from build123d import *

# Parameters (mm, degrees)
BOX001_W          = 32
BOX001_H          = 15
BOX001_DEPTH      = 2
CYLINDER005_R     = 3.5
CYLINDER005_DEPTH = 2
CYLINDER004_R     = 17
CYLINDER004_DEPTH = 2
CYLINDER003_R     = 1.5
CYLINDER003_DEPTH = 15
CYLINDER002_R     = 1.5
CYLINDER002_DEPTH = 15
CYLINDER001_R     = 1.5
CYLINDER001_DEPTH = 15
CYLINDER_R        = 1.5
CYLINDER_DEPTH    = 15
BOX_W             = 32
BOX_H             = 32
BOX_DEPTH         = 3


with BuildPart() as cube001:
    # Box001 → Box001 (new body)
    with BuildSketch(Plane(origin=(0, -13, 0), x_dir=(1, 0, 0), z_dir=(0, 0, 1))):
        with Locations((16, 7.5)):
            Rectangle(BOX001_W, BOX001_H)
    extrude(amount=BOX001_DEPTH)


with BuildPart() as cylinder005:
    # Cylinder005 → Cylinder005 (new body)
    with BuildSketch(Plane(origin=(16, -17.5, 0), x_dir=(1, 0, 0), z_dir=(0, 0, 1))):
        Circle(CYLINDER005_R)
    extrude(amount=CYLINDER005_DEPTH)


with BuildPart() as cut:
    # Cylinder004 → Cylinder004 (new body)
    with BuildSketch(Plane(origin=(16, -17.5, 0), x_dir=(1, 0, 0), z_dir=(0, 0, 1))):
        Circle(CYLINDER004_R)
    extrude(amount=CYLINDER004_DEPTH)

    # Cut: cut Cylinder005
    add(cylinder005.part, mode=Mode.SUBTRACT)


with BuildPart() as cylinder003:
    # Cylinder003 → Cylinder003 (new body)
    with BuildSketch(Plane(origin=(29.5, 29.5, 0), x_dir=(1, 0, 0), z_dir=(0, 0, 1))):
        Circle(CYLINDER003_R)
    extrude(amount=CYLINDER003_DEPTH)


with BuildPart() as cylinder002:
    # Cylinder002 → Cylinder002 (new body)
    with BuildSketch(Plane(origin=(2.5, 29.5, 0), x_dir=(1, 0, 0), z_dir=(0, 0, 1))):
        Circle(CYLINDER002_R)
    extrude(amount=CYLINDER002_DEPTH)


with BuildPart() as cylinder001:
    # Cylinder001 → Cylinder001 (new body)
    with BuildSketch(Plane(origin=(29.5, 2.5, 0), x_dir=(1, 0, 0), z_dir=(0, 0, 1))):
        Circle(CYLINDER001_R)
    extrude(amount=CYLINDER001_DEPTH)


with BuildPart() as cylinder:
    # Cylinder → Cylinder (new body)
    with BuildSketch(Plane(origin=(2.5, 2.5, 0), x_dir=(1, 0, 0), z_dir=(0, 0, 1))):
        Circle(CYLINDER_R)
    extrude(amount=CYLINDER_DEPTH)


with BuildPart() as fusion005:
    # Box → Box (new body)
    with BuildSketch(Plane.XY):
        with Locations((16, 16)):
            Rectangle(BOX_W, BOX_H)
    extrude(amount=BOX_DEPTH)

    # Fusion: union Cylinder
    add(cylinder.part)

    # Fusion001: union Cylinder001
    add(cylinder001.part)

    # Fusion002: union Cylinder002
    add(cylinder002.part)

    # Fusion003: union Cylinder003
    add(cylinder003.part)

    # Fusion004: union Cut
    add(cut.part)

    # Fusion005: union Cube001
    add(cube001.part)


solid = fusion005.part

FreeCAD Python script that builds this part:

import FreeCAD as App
import Part
import Sketcher

V = App.Vector
Q = App.Units.Quantity


def add_polygon(sketch, points):
    """Adds a closed chain of lines whose ends are joined by coincident constraints."""
    first, n = sketch.GeometryCount, len(points)
    for a, b in zip(points, points[1:] + points[:1]):
        sketch.addGeometry(Part.LineSegment(App.Vector(*a, 0), App.Vector(*b, 0)), False)
    for i in range(n):
        sketch.addConstraint(Sketcher.Constraint("Coincident", first + i, 2, first + (i + 1) % n, 1))

doc = App.newDocument("Part")
body = doc.addObject("PartDesign::Body", "Body")

# Sketch on XY plane
sketch1 = doc.addObject("Sketcher::SketchObject", "Sketch")
body.addObject(sketch1)
sketch1.AttachmentSupport = (doc.XY_Plane, [""])
sketch1.MapMode = "FlatFace"
add_polygon(sketch1, [(0, 2), (0, -13), (32, -13), (32, 2)])  # lines 0-3
sketch1.addConstraint([
    Sketcher.Constraint("Vertical", 0),
    Sketcher.Constraint("Horizontal", 1),
    Sketcher.Constraint("Vertical", 2),
    Sketcher.Constraint("Horizontal", 3),
    Sketcher.Constraint("PointOnObject", 0, 2, -2),
    Sketcher.Constraint("DistanceX", 1, 1, 1, 2, Q("32 mm")),
    Sketcher.Constraint("DistanceY", 0, 2, 0, 1, Q("15 mm")),
    Sketcher.Constraint("DistanceY", 0, 2, -1, 1, Q("13 mm")),
])
pad1 = doc.addObject("PartDesign::Pad", "Pad")
body.addObject(pad1)
pad1.Profile = sketch1
pad1.Length = 2
body2 = doc.addObject("PartDesign::Body", "Body001")

# Sketch on XY plane
sketch2 = doc.addObject("Sketcher::SketchObject", "Sketch001")
body2.addObject(sketch2)
sketch2.AttachmentSupport = (doc.getObject("XY_Plane001"), [""])
sketch2.MapMode = "FlatFace"
sketch2.addGeometry(Part.Circle(V(16, -17.5, 0), V(0, 0, 1), 3.5), False)
sketch2.addConstraint([
    Sketcher.Constraint("Diameter", 0, Q("7 mm")),
    Sketcher.Constraint("DistanceX", -1, 1, 0, 3, Q("16 mm")),
    Sketcher.Constraint("DistanceY", 0, 3, -1, 1, Q("17.5 mm")),
])
pad2 = doc.addObject("PartDesign::Pad", "Pad001")
body2.addObject(pad2)
pad2.Profile = sketch2
pad2.Length = 2
body3 = doc.addObject("PartDesign::Body", "Body002")

# Sketch on XY plane
sketch3 = doc.addObject("Sketcher::SketchObject", "Sketch002")
body3.addObject(sketch3)
sketch3.AttachmentSupport = (doc.getObject("XY_Plane002"), [""])
sketch3.MapMode = "FlatFace"
sketch3.addGeometry(Part.Circle(V(16, -18, 0), V(0, 0, 1), 17), False)
sketch3.addConstraint([
    Sketcher.Constraint("Diameter", 0, Q("34 mm")),
    Sketcher.Constraint("DistanceX", -1, 1, 0, 3, Q("16 mm")),
    Sketcher.Constraint("DistanceY", 0, 3, -1, 1, Q("17.5 mm")),
])
pad3 = doc.addObject("PartDesign::Pad", "Pad002")
body3.addObject(pad3)
pad3.Profile = sketch3
pad3.Length = 2
doc.recompute()

boolean = doc.addObject("PartDesign::Boolean", "Boolean")
body3.addObject(boolean)
boolean.Type = "Cut"
boolean.addObjects([body2])
body4 = doc.addObject("PartDesign::Body", "Body003")

# Sketch on XY plane
sketch4 = doc.addObject("Sketcher::SketchObject", "Sketch003")
body4.addObject(sketch4)
sketch4.AttachmentSupport = (doc.getObject("XY_Plane003"), [""])
sketch4.MapMode = "FlatFace"
sketch4.addGeometry(Part.Circle(V(29.5, 29.5, 0), V(0, 0, 1), 1.5), False)
sketch4.addConstraint([
    Sketcher.Constraint("Diameter", 0, Q("3 mm")),
    Sketcher.Constraint("DistanceX", -1, 1, 0, 3, Q("29.5 mm")),
    Sketcher.Constraint("DistanceY", -1, 1, 0, 3, Q("29.5 mm")),
])
pad4 = doc.addObject("PartDesign::Pad", "Pad003")
body4.addObject(pad4)
pad4.Profile = sketch4
pad4.Length = 15
body5 = doc.addObject("PartDesign::Body", "Body004")

# Sketch on XY plane
sketch5 = doc.addObject("Sketcher::SketchObject", "Sketch004")
body5.addObject(sketch5)
sketch5.AttachmentSupport = (doc.getObject("XY_Plane004"), [""])
sketch5.MapMode = "FlatFace"
sketch5.addGeometry(Part.Circle(V(2.5, 29.5, 0), V(0, 0, 1), 1.5), False)
sketch5.addConstraint([
    Sketcher.Constraint("Diameter", 0, Q("3 mm")),
    Sketcher.Constraint("DistanceX", -1, 1, 0, 3, Q("2.5 mm")),
    Sketcher.Constraint("DistanceY", -1, 1, 0, 3, Q("29.5 mm")),
])
pad5 = doc.addObject("PartDesign::Pad", "Pad004")
body5.addObject(pad5)
pad5.Profile = sketch5
pad5.Length = 15
body6 = doc.addObject("PartDesign::Body", "Body005")

# Sketch on XY plane
sketch6 = doc.addObject("Sketcher::SketchObject", "Sketch005")
body6.addObject(sketch6)
sketch6.AttachmentSupport = (doc.getObject("XY_Plane005"), [""])
sketch6.MapMode = "FlatFace"
sketch6.addGeometry(Part.Circle(V(29.5, 2.5, 0), V(0, 0, 1), 1.5), False)
sketch6.addConstraint([
    Sketcher.Constraint("Diameter", 0, Q("3 mm")),
    Sketcher.Constraint("DistanceX", -1, 1, 0, 3, Q("29.5 mm")),
    Sketcher.Constraint("DistanceY", -1, 1, 0, 3, Q("2.5 mm")),
])
pad6 = doc.addObject("PartDesign::Pad", "Pad005")
body6.addObject(pad6)
pad6.Profile = sketch6
pad6.Length = 15
body7 = doc.addObject("PartDesign::Body", "Body006")

# Sketch on XY plane
sketch7 = doc.addObject("Sketcher::SketchObject", "Sketch006")
body7.addObject(sketch7)
sketch7.AttachmentSupport = (doc.getObject("XY_Plane006"), [""])
sketch7.MapMode = "FlatFace"
sketch7.addGeometry(Part.Circle(V(2.5, 2.5, 0), V(0, 0, 1), 1.5), False)
sketch7.addConstraint([
    Sketcher.Constraint("Diameter", 0, Q("3 mm")),
    Sketcher.Constraint("DistanceX", -1, 1, 0, 3, Q("2.5 mm")),
    Sketcher.Constraint("DistanceY", -1, 1, 0, 3, Q("2.5 mm")),
])
pad7 = doc.addObject("PartDesign::Pad", "Pad006")
body7.addObject(pad7)
pad7.Profile = sketch7
pad7.Length = 15
body8 = doc.addObject("PartDesign::Body", "Body007")
body8.AllowCompound = True

# Sketch on XY plane
sketch8 = doc.addObject("Sketcher::SketchObject", "Sketch007")
body8.addObject(sketch8)
sketch8.AttachmentSupport = (doc.getObject("XY_Plane007"), [""])
sketch8.MapMode = "FlatFace"
add_polygon(sketch8, [(0, 32), (0, 0), (32, 0), (32, 32)])  # lines 0-3
sketch8.addConstraint([
    Sketcher.Constraint("Vertical", 0),
    Sketcher.Constraint("Horizontal", 1),
    Sketcher.Constraint("Vertical", 2),
    Sketcher.Constraint("Horizontal", 3),
    Sketcher.Constraint("Coincident", 0, 2, -1, 1),
    Sketcher.Constraint("Equal", 3, 0),
    Sketcher.Constraint("DistanceX", 1, 1, 1, 2, Q("32 mm")),
])
pad8 = doc.addObject("PartDesign::Pad", "Pad007")
body8.addObject(pad8)
pad8.Profile = sketch8
pad8.Length = 3
doc.recompute()

boolean2 = doc.addObject("PartDesign::Boolean", "Boolean001")
body8.addObject(boolean2)
boolean2.Type = "Fuse"
boolean2.addObjects([body7])
doc.recompute()

boolean3 = doc.addObject("PartDesign::Boolean", "Boolean002")
body8.addObject(boolean3)
boolean3.Type = "Fuse"
boolean3.addObjects([body6])
doc.recompute()

boolean4 = doc.addObject("PartDesign::Boolean", "Boolean003")
body8.addObject(boolean4)
boolean4.Type = "Fuse"
boolean4.addObjects([body5])
doc.recompute()

boolean5 = doc.addObject("PartDesign::Boolean", "Boolean004")
body8.addObject(boolean5)
boolean5.Type = "Fuse"
boolean5.addObjects([body4])
doc.recompute()

boolean6 = doc.addObject("PartDesign::Boolean", "Boolean005")
body8.addObject(boolean6)
boolean6.Type = "Fuse"
boolean6.addObjects([body3])
doc.recompute()

boolean7 = doc.addObject("PartDesign::Boolean", "Boolean006")
body8.addObject(boolean7)
boolean7.Type = "Fuse"
boolean7.addObjects([body])

doc.recompute()
